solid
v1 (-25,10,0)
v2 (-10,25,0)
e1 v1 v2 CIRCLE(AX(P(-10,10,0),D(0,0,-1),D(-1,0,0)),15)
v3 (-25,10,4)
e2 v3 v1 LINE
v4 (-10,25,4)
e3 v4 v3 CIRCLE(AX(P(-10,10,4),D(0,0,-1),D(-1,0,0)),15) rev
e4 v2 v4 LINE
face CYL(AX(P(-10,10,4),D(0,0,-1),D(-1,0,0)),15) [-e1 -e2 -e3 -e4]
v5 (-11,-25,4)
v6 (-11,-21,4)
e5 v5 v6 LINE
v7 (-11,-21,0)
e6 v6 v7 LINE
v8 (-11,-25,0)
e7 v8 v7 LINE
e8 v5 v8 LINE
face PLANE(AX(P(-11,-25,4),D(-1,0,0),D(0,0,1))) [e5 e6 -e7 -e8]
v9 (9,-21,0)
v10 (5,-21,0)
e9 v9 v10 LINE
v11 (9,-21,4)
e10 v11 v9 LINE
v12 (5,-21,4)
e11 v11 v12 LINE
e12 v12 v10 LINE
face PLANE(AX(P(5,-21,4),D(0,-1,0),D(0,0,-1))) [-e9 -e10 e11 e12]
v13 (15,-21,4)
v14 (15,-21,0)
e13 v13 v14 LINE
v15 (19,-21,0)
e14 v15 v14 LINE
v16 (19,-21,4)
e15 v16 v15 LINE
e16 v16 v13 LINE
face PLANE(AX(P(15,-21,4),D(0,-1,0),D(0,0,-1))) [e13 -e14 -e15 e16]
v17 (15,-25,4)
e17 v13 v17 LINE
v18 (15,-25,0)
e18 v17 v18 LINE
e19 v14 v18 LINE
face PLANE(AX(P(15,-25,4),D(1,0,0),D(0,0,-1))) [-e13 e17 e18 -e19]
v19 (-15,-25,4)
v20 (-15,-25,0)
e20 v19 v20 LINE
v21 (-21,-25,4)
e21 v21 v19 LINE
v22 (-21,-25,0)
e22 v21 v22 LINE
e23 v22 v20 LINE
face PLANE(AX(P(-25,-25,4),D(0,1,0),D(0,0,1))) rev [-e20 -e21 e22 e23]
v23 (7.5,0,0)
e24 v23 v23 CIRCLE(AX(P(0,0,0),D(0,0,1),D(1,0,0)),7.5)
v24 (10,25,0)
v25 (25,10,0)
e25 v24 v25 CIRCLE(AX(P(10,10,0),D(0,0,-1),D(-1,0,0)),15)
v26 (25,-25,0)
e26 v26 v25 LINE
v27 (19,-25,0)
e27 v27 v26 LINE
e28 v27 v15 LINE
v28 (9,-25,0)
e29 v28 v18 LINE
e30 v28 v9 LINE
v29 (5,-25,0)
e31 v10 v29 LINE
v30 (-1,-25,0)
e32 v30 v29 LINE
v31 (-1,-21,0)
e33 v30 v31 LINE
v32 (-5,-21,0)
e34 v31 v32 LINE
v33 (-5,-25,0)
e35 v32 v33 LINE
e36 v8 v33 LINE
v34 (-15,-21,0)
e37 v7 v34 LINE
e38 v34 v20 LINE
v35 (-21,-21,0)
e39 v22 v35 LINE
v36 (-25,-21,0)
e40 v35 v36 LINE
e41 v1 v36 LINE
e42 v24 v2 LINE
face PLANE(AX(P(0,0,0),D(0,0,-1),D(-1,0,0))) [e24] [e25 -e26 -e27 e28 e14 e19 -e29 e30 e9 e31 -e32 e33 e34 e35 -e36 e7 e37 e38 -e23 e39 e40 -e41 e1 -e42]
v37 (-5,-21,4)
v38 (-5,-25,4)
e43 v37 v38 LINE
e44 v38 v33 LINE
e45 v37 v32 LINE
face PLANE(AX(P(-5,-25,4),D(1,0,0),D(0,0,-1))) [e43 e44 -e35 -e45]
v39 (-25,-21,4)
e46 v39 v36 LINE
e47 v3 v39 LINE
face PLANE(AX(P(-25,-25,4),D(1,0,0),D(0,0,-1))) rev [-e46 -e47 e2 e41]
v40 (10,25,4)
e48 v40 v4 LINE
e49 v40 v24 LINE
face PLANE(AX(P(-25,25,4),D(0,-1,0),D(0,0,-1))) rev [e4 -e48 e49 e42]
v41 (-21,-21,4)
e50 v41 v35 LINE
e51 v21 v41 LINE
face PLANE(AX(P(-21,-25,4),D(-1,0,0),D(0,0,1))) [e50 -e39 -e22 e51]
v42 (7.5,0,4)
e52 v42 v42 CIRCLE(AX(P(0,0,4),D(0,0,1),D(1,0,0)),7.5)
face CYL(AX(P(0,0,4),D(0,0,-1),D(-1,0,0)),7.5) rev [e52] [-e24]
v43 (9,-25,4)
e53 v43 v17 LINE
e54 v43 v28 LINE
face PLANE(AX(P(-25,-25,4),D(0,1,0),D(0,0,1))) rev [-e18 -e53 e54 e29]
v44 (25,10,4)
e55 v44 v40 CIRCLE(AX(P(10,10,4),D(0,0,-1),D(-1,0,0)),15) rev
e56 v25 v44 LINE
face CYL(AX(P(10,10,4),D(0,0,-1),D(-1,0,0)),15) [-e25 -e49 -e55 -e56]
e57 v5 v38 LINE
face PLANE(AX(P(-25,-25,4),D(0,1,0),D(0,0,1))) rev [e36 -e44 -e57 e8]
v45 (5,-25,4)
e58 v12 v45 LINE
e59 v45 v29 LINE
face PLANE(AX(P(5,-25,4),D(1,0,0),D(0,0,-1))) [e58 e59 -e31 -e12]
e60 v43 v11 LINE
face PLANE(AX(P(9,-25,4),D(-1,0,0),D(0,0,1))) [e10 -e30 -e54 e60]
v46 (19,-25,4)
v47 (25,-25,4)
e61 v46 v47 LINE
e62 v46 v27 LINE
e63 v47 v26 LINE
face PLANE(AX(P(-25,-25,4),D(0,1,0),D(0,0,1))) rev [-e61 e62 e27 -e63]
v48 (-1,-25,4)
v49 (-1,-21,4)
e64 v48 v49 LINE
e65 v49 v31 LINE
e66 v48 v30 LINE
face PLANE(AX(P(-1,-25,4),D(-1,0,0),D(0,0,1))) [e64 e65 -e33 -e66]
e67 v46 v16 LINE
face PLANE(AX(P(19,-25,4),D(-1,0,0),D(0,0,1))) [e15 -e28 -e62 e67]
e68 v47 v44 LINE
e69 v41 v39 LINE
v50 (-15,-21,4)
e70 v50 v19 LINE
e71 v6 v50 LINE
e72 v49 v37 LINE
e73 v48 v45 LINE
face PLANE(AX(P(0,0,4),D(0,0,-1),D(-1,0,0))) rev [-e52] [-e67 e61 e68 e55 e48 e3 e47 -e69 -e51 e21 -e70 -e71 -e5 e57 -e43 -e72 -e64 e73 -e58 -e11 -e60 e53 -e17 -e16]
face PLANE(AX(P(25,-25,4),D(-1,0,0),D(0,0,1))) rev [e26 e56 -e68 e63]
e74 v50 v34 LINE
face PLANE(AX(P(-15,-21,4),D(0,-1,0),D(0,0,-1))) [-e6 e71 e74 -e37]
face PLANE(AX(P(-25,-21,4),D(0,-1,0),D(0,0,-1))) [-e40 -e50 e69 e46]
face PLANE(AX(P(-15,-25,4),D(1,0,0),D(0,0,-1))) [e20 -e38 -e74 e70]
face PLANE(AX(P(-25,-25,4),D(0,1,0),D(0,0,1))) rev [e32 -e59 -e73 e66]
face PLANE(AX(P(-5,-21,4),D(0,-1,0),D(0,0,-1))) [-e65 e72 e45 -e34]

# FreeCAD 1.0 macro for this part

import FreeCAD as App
import Part
import Sketcher
Q = App.Units.Quantity


def edges_at(feature, points):
    """Names of the edges that pass closest to the given points."""
    edges = feature.Shape.Edges
    near = lambda p: min(range(len(edges)), key=lambda i: edges[i].distToShape(Part.Vertex(*p))[0])
    return sorted({f"Edge{near(p) + 1}" for p in points})

doc = App.newDocument("Part")
params = doc.addObject("Spreadsheet::Sheet", "Params")
for row, (alias, value) in enumerate([
    ("sketch1_width", "50 mm"),
    ("pad1_length", "4 mm"),
    ("sketch2_width", "4 mm"),
    ("pocket1_length", "4 mm"),
    ("sketch3_diameter", "15 mm"),
    ("pocket2_length", "4 mm"),
    ("fillet_radius", "15 mm"),
], start=1):
    params.set(f"A{row}", alias)
    params.set(f"B{row}", "=" + value)
    params.setAlias(f"B{row}", alias)

body = doc.addObject("PartDesign::Body", "Body")

# Sketch on XY plane
sketch1 = body.newObject("Sketcher::SketchObject", "Sketch")
sketch1.AttachmentSupport = (doc.getObject("XY_Plane"), [""])
sketch1.MapMode = "FlatFace"
sketch1.addGeometry(Part.LineSegment(App.Vector(-25, 25, 0), App.Vector(-25, -25, 0)), False)
sketch1.addGeometry(Part.LineSegment(App.Vector(-25, -25, 0), App.Vector(25, -25, 0)), False)
sketch1.addGeometry(Part.LineSegment(App.Vector(25, -25, 0), App.Vector(25, 25, 0)), False)
sketch1.addGeometry(Part.LineSegment(App.Vector(25, 25, 0), App.Vector(-25, 25, 0)), False)
sketch1.addConstraint(Sketcher.Constraint("Coincident", 0, 2, 1, 1))
sketch1.addConstraint(Sketcher.Constraint("Coincident", 1, 2, 2, 1))
sketch1.addConstraint(Sketcher.Constraint("Coincident", 2, 2, 3, 1))
sketch1.addConstraint(Sketcher.Constraint("Coincident", 3, 2, 0, 1))
sketch1.addConstraint(Sketcher.Constraint("Vertical", 0))
sketch1.addConstraint(Sketcher.Constraint("Horizontal", 1))
sketch1.addConstraint(Sketcher.Constraint("Vertical", 2))
sketch1.addConstraint(Sketcher.Constraint("Horizontal", 3))
sketch1.addConstraint(Sketcher.Constraint("Symmetric", 0, 2, 2, 2, -1, 1))
sketch1.addConstraint(Sketcher.Constraint("Equal", 3, 0))
sketch1.addConstraint(Sketcher.Constraint("DistanceX", 1, 1, 1, 2, Q("50 mm")))
sketch1.setExpression("Constraints[10]", "Params.sketch1_width")
pad1 = body.newObject("PartDesign::Pad", "Pad")
pad1.Profile = sketch1
pad1.setExpression("Length", "Params.pad1_length")

# Sketch on XY plane
sketch2 = body.newObject("Sketcher::SketchObject", "Sketch001")
sketch2.AttachmentSupport = (doc.getObject("XY_Plane"), [""])
sketch2.MapMode = "FlatFace"
sketch2.addGeometry(Part.LineSegment(App.Vector(-25, -21, 0), App.Vector(-25, -25, 0)), False)
sketch2.addGeometry(Part.LineSegment(App.Vector(-25, -25, 0), App.Vector(-21, -25, 0)), False)
sketch2.addGeometry(Part.LineSegment(App.Vector(-21, -25, 0), App.Vector(-21, -21, 0)), False)
sketch2.addGeometry(Part.LineSegment(App.Vector(-21, -21, 0), App.Vector(-25, -21, 0)), False)
sketch2.addGeometry(Part.LineSegment(App.Vector(-15, -21, 0), App.Vector(-15, -25, 0)), False)
sketch2.addGeometry(Part.LineSegment(App.Vector(-15, -25, 0), App.Vector(-11, -25, 0)), False)
sketch2.addGeometry(Part.LineSegment(App.Vector(-11, -25, 0), App.Vector(-11, -21, 0)), False)
sketch2.addGeometry(Part.LineSegment(App.Vector(-11, -21, 0), App.Vector(-15, -21, 0)), False)
sketch2.addGeometry(Part.LineSegment(App.Vector(-5, -21, 0), App.Vector(-5, -25, 0)), False)
sketch2.addGeometry(Part.LineSegment(App.Vector(-5, -25, 0), App.Vector(-1, -25, 0)), False)
sketch2.addGeometry(Part.LineSegment(App.Vector(-1, -25, 0), App.Vector(-1, -21, 0)), False)
sketch2.addGeometry(Part.LineSegment(App.Vector(-1, -21, 0), App.Vector(-5, -21, 0)), False)
sketch2.addGeometry(Part.LineSegment(App.Vector(5, -21, 0), App.Vector(5, -25, 0)), False)
sketch2.addGeometry(Part.LineSegment(App.Vector(5, -25, 0), App.Vector(9, -25, 0)), False)
sketch2.addGeometry(Part.LineSegment(App.Vector(9, -25, 0), App.Vector(9, -21, 0)), False)
sketch2.addGeometry(Part.LineSegment(App.Vector(9, -21, 0), App.Vector(5, -21, 0)), False)
sketch2.addGeometry(Part.LineSegment(App.Vector(15, -21, 0), App.Vector(15, -25, 0)), False)
sketch2.addGeometry(Part.LineSegment(App.Vector(15, -25, 0), App.Vector(19, -25, 0)), False)
sketch2.addGeometry(Part.LineSegment(App.Vector(19, -25, 0), App.Vector(19, -21, 0)), False)
sketch2.addGeometry(Part.LineSegment(App.Vector(19, -21, 0), App.Vector(15, -21, 0)), False)
sketch2.addConstraint(Sketcher.Constraint("Coincident", 0, 2, 1, 1))
sketch2.addConstraint(Sketcher.Constraint("Coincident", 1, 2, 2, 1))
sketch2.addConstraint(Sketcher.Constraint("Coincident", 2, 2, 3, 1))
sketch2.addConstraint(Sketcher.Constraint("Coincident", 3, 2, 0, 1))
sketch2.addConstraint(Sketcher.Constraint("Coincident", 4, 2, 5, 1))
sketch2.addConstraint(Sketcher.Constraint("Coincident", 5, 2, 6, 1))
sketch2.addConstraint(Sketcher.Constraint("Coincident", 6, 2, 7, 1))
sketch2.addConstraint(Sketcher.Constraint("Coincident", 7, 2, 4, 1))
sketch2.addConstraint(Sketcher.Constraint("Coincident", 8, 2, 9, 1))
sketch2.addConstraint(Sketcher.Constraint("Coincident", 9, 2, 10, 1))
sketch2.addConstraint(Sketcher.Constraint("Coincident", 10, 2, 11, 1))
sketch2.addConstraint(Sketcher.Constraint("Coincident", 11, 2, 8, 1))
sketch2.addConstraint(Sketcher.Constraint("Coincident", 12, 2, 13, 1))
sketch2.addConstraint(Sketcher.Constraint("Coincident", 13, 2, 14, 1))
sketch2.addConstraint(Sketcher.Constraint("Coincident", 14, 2, 15, 1))
sketch2.addConstraint(Sketcher.Constraint("Coincident", 15, 2, 12, 1))
sketch2.addConstraint(Sketcher.Constraint("Coincident", 16, 2, 17, 1))
sketch2.addConstraint(Sketcher.Constraint("Coincident", 17, 2, 18, 1))
sketch2.addConstraint(Sketcher.Constraint("Coincident", 18, 2, 19, 1))
sketch2.addConstraint(Sketcher.Constraint("Coincident", 19, 2, 16, 1))
sketch2.addConstraint(Sketcher.Constraint("Vertical", 0))
sketch2.addConstraint(Sketcher.Constraint("Horizontal", 1))
sketch2.addConstraint(Sketcher.Constraint("Vertical", 2))
sketch2.addConstraint(Sketcher.Constraint("Horizontal", 3))
sketch2.addConstraint(Sketcher.Constraint("Vertical", 4))
sketch2.addConstraint(Sketcher.Constraint("Horizontal", 5))
sketch2.addConstraint(Sketcher.Constraint("Vertical", 6))
sketch2.addConstraint(Sketcher.Constraint("Horizontal", 7))
sketch2.addConstraint(Sketcher.Constraint("Vertical", 8))
sketch2.addConstraint(Sketcher.Constraint("Horizontal", 9))
sketch2.addConstraint(Sketcher.Constraint("Vertical", 10))
sketch2.addConstraint(Sketcher.Constraint("Horizontal", 11))
sketch2.addConstraint(Sketcher.Constraint("Vertical", 12))
sketch2.addConstraint(Sketcher.Constraint("Horizontal", 13))
sketch2.addConstraint(Sketcher.Constraint("Vertical", 14))
sketch2.addConstraint(Sketcher.Constraint("Horizontal", 15))
sketch2.addConstraint(Sketcher.Constraint("Vertical", 16))
sketch2.addConstraint(Sketcher.Constraint("Horizontal", 17))
sketch2.addConstraint(Sketcher.Constraint("Vertical", 18))
sketch2.addConstraint(Sketcher.Constraint("Horizontal", 19))
sketch2.addConstraint(Sketcher.Constraint("Symmetric", 8, 2, 12, 2, -2))
sketch2.addConstraint(Sketcher.Constraint("Symmetric", 4, 2, 16, 2, -2))
sketch2.addConstraint(Sketcher.Constraint("Horizontal", 1, 2, 4, 2))
sketch2.addConstraint(Sketcher.Constraint("Horizontal", 3, 2, 6, 2))
sketch2.addConstraint(Sketcher.Constraint("Horizontal", 5, 2, 8, 2))
sketch2.addConstraint(Sketcher.Constraint("Horizontal", 7, 2, 10, 2))
sketch2.addConstraint(Sketcher.Constraint("Horizontal", 11, 2, 14, 2))
sketch2.addConstraint(Sketcher.Constraint("Horizontal", 15, 2, 18, 2))
sketch2.addConstraint(Sketcher.Constraint("Equal", 3, 5))
sketch2.addConstraint(Sketcher.Constraint("Equal", 7, 9))
sketch2.addConstraint(Sketcher.Constraint("Equal", 11, 13))
sketch2.addConstraint(Sketcher.Constraint("Equal", 15, 17))
sketch2.addConstraint(Sketcher.Constraint("Equal", 19, 0))
sketch2.addConstraint(Sketcher.Constraint("DistanceX", 1, 1, 1, 2, Q("4 mm")))
sketch2.addConstraint(Sketcher.Constraint("DistanceX", 0, 2, -1, 1, Q("25 mm")))
sketch2.addConstraint(Sketcher.Constraint("DistanceY", 0, 2, -1, 1, Q("25 mm")))
sketch2.addConstraint(Sketcher.Constraint("DistanceX", 4, 2, -1, 1, Q("15 mm")))
sketch2.addConstraint(Sketcher.Constraint("DistanceX", 8, 2, -1, 1, Q("5 mm")))
sketch2.setExpression("Constraints[53]", "Params.sketch2_width")
pocket1 = body.newObject("PartDesign::Pocket", "Pocket")
pocket1.Profile = sketch2
pocket1.setExpression("Length", "Params.pocket1_length")
pocket1.Reversed = True

# Sketch on XY plane
sketch3 = body.newObject("Sketcher::SketchObject", "Sketch002")
sketch3.AttachmentSupport = (doc.getObject("XY_Plane"), [""])
sketch3.MapMode = "FlatFace"
sketch3.addGeometry(Part.Circle(App.Vector(0, 0, 0), App.Vector(0, 0, 1), 7.5), False)
sketch3.addConstraint(Sketcher.Constraint("Coincident", 0, 3, -1, 1))
sketch3.addConstraint(Sketcher.Constraint("Diameter", 0, Q("15 mm")))
sketch3.setExpression("Constraints[1]", "Params.sketch3_diameter")
pocket2 = body.newObject("PartDesign::Pocket", "Pocket001")
pocket2.Profile = sketch3
pocket2.setExpression("Length", "Params.pocket2_length")
pocket2.Reversed = True
doc.recompute()

fillet = body.newObject("PartDesign::Fillet", "Fillet")
fillet.Base = (pocket2, edges_at(pocket2, [(-25, 25, 2), (25, 25, 2)]))
fillet.setExpression("Radius", "Params.fillet_radius")

doc.recompute()
